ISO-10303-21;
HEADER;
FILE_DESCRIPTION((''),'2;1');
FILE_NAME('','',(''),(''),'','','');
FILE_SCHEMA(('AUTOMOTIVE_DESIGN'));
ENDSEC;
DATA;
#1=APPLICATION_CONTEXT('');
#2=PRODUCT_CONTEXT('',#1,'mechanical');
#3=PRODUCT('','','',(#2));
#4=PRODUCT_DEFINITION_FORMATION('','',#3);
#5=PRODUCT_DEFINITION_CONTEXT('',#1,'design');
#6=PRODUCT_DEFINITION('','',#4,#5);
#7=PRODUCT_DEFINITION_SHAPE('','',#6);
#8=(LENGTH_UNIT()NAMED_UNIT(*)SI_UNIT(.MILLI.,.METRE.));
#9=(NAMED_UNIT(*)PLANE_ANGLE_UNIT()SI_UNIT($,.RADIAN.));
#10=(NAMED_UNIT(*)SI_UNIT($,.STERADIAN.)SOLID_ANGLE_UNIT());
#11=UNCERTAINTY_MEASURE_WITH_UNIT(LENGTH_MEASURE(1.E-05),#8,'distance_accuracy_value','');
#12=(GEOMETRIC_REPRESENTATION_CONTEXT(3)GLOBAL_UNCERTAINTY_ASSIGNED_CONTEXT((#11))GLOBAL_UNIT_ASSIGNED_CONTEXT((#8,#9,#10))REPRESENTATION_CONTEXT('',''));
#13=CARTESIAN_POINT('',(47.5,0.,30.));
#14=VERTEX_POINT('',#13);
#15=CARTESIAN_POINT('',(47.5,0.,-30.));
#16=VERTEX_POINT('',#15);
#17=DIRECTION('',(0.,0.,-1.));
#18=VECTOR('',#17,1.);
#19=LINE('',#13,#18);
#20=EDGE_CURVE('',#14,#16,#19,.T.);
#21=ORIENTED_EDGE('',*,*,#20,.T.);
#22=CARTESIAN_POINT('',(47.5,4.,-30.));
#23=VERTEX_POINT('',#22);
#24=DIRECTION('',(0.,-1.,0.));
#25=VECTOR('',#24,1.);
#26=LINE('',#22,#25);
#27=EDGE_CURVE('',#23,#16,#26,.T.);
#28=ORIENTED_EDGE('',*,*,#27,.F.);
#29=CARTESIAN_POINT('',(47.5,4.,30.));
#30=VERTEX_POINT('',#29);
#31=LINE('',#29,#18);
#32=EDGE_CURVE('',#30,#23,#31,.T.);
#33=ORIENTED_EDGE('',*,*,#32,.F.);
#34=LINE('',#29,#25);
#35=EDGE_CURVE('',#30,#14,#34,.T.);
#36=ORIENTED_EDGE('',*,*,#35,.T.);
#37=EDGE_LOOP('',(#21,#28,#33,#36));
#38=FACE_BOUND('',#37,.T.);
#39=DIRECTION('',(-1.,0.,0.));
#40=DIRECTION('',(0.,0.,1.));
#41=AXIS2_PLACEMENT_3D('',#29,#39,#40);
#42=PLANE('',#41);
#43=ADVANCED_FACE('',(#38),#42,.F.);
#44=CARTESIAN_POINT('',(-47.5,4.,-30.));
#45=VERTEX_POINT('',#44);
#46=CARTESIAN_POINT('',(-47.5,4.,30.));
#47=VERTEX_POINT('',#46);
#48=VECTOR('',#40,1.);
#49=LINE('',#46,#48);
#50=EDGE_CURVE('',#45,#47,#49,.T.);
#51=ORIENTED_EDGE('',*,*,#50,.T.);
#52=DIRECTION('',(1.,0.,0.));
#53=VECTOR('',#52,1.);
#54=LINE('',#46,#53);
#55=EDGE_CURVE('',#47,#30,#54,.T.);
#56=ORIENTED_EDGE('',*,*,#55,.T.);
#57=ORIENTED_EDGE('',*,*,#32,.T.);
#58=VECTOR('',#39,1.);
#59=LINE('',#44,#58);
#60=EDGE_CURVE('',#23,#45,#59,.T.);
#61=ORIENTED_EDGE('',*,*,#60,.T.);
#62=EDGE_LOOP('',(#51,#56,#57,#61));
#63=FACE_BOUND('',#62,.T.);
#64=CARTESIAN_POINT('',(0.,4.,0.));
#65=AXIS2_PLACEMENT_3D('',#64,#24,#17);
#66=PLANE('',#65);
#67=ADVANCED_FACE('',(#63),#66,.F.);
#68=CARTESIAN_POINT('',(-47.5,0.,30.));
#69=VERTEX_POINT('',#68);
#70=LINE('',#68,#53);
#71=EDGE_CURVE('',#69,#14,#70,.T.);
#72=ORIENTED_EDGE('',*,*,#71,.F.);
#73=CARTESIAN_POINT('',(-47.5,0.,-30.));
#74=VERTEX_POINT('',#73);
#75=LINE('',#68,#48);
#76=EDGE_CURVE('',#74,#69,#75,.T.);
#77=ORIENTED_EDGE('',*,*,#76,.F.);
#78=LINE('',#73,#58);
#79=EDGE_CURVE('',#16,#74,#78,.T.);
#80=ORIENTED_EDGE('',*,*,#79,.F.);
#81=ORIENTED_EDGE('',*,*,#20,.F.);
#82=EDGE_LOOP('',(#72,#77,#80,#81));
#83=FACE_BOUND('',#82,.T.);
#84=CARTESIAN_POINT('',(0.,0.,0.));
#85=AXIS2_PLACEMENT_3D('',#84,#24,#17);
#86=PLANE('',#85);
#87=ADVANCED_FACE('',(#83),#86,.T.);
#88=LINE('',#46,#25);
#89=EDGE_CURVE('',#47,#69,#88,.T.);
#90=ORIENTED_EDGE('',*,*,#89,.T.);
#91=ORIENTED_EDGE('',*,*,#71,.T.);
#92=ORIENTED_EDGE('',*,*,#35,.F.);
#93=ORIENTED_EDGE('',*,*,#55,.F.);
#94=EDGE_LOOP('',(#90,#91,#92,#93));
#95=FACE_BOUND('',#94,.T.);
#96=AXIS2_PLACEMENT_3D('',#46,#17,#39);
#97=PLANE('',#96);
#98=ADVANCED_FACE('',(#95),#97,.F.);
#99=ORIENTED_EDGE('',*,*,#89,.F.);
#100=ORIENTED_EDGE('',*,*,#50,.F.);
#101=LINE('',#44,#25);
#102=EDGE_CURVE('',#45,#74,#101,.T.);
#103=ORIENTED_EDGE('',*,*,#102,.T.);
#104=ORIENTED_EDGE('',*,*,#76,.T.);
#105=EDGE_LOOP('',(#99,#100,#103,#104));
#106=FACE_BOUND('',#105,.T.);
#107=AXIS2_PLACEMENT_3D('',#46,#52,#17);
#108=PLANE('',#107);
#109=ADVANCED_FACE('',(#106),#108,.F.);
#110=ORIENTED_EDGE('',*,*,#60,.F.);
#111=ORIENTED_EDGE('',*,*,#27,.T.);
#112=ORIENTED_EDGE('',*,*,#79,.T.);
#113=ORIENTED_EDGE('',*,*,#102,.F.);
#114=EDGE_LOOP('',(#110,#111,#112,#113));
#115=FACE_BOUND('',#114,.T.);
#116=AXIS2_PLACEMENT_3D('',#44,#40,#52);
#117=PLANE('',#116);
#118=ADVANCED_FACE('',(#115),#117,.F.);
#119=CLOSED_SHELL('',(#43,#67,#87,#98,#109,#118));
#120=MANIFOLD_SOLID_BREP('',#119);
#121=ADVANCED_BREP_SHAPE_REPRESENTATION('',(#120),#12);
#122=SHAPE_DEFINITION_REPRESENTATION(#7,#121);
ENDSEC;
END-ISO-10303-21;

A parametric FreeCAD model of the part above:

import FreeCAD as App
import Part
import Sketcher

V = App.Vector

doc = App.newDocument("Part")
body = doc.addObject("PartDesign::Body", "Body")

# Sketch on XZ plane
sketch1 = body.newObject("Sketcher::SketchObject", "Sketch")
sketch1.AttachmentSupport = (doc.getObject("XZ_Plane"), [""])
sketch1.MapMode = "FlatFace"
sketch1.addGeometry([
    Part.LineSegment(V(-48, -30, 0), V(-48, 30, 0)),
    Part.LineSegment(V(-48, 30, 0), V(48, 30, 0)),
    Part.LineSegment(V(48, 30, 0), V(48, -30, 0)),
    Part.LineSegment(V(48, -30, 0), V(-48, -30, 0)),
], False)
sketch1.addConstraint([
    Sketcher.Constraint("Coincident", 0, 2, 1, 1),
    Sketcher.Constraint("Coincident", 1, 2, 2, 1),
    Sketcher.Constraint("Coincident", 2, 2, 3, 1),
    Sketcher.Constraint("Coincident", 3, 2, 0, 1),
    Sketcher.Constraint("Vertical", 0),
    Sketcher.Constraint("Horizontal", 1),
    Sketcher.Constraint("Vertical", 2),
    Sketcher.Constraint("Horizontal", 3),
    Sketcher.Constraint("Symmetric", 0, 2, 2, 2, -1, 1),
    Sketcher.Constraint("DistanceX", 1, 1, 1, 2, 95.0),
    Sketcher.Constraint("DistanceY", 0, 1, 0, 2, 60.0),
])
pad1 = body.newObject("PartDesign::Pad", "Pad")
pad1.Profile = sketch1
pad1.Length = 4
pad1.Reversed = True

doc.recompute()
